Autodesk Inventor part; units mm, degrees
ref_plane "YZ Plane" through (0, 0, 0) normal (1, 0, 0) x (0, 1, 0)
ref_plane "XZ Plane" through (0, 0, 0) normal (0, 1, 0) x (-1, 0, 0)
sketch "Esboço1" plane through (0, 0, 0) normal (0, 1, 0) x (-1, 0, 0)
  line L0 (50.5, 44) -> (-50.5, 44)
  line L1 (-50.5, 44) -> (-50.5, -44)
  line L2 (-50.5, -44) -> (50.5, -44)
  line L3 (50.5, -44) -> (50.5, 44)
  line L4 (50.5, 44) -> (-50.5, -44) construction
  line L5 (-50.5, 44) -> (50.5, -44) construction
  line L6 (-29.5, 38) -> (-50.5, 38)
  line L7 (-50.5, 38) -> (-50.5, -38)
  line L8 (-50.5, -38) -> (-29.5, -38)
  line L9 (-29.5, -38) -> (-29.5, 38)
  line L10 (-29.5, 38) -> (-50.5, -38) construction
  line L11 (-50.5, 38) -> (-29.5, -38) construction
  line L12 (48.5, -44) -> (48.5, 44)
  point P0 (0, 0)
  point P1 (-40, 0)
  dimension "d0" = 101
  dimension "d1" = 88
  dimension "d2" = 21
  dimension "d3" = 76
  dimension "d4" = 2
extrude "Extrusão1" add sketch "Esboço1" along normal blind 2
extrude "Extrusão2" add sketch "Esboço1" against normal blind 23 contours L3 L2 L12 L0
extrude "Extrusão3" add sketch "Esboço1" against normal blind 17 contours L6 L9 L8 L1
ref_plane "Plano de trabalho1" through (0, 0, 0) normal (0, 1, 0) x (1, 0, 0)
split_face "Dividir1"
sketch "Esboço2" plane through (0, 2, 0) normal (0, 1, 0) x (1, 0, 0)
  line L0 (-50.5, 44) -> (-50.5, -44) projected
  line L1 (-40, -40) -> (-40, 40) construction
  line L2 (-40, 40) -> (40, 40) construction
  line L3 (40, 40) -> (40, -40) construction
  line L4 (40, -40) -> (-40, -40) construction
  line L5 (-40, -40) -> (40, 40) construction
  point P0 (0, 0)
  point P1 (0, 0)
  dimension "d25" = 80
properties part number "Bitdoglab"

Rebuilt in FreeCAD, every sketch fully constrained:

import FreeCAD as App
import Part
import Sketcher
from FreeCAD import Vector

doc = App.newDocument("Part")
body = doc.addObject("PartDesign::Body", "Body")

sketch1 = body.newObject("Sketcher::SketchObject", "Sketch")
sketch1.AttachmentSupport = (doc.getObject("XZ_Plane"), [""])
sketch1.MapMode = "FlatFace"
sketch1.addGeometry(Part.LineSegment(Vector(-50, -44, 0), Vector(-50, 44, 0)), False)
sketch1.addGeometry(Part.LineSegment(Vector(-50, 44, 0), Vector(50, 44, 0)), False)
sketch1.addGeometry(Part.LineSegment(Vector(50, 44, 0), Vector(50, -44, 0)), False)
sketch1.addGeometry(Part.LineSegment(Vector(50, -44, 0), Vector(-50, -44, 0)), False)
sketch1.addConstraint(Sketcher.Constraint("Coincident", 0, 2, 1, 1))
sketch1.addConstraint(Sketcher.Constraint("Coincident", 1, 2, 2, 1))
sketch1.addConstraint(Sketcher.Constraint("Coincident", 2, 2, 3, 1))
sketch1.addConstraint(Sketcher.Constraint("Coincident", 3, 2, 0, 1))
sketch1.addConstraint(Sketcher.Constraint("Vertical", 0))
sketch1.addConstraint(Sketcher.Constraint("Horizontal", 1))
sketch1.addConstraint(Sketcher.Constraint("Vertical", 2))
sketch1.addConstraint(Sketcher.Constraint("Horizontal", 3))
sketch1.addConstraint(Sketcher.Constraint("Symmetric", 0, 2, 2, 2, -1, 1))
sketch1.addConstraint(Sketcher.Constraint("DistanceX", 1, 1, 1, 2, 101.0))
sketch1.addConstraint(Sketcher.Constraint("DistanceY", 0, 1, 0, 2, 88.0))
pad1 = body.newObject("PartDesign::Pad", "Pad")
pad1.Profile = sketch1
pad1.Length = 2
pad1.Reversed = True

sketch2 = body.newObject("Sketcher::SketchObject", "Sketch001")
sketch2.AttachmentSupport = (doc.getObject("XZ_Plane"), [""])
sketch2.MapMode = "FlatFace"
sketch2.addGeometry(Part.LineSegment(Vector(-50.5, -44, 0), Vector(-50.5, 44, 0)), False)
sketch2.addGeometry(Part.LineSegment(Vector(-50.5, 44, 0), Vector(-48.5, 44, 0)), False)
sketch2.addGeometry(Part.LineSegment(Vector(-48.5, 44, 0), Vector(-48.5, -44, 0)), False)
sketch2.addGeometry(Part.LineSegment(Vector(-48.5, -44, 0), Vector(-50.5, -44, 0)), False)
sketch2.addConstraint(Sketcher.Constraint("Coincident", 0, 2, 1, 1))
sketch2.addConstraint(Sketcher.Constraint("Coincident", 1, 2, 2, 1))
sketch2.addConstraint(Sketcher.Constraint("Coincident", 2, 2, 3, 1))
sketch2.addConstraint(Sketcher.Constraint("Coincident", 3, 2, 0, 1))
sketch2.addConstraint(Sketcher.Constraint("Vertical", 0))
sketch2.addConstraint(Sketcher.Constraint("Horizontal", 1))
sketch2.addConstraint(Sketcher.Constraint("Vertical", 2))
sketch2.addConstraint(Sketcher.Constraint("Horizontal", 3))
sketch2.addConstraint(Sketcher.Constraint("DistanceX", 1, 1, 1, 2, 2.0))
sketch2.addConstraint(Sketcher.Constraint("DistanceY", 0, 1, 0, 2, 88.0))
sketch2.addConstraint(Sketcher.Constraint("DistanceY", -1, 1, 0, 2, 44.0))
sketch2.addConstraint(Sketcher.Constraint("DistanceX", 0, 2, -1, 1, 50.5))
pad2 = body.newObject("PartDesign::Pad", "Pad001")
pad2.Profile = sketch2
pad2.Length = 23

sketch3 = body.newObject("Sketcher::SketchObject", "Sketch002")
sketch3.AttachmentSupport = (doc.getObject("XZ_Plane"), [""])
sketch3.MapMode = "FlatFace"
sketch3.addGeometry(Part.LineSegment(Vector(30, 38, 0), Vector(50, 38, 0)), False)
sketch3.addGeometry(Part.LineSegment(Vector(50, 38, 0), Vector(50, -38, 0)), False)
sketch3.addGeometry(Part.LineSegment(Vector(50, -38, 0), Vector(30, -38, 0)), False)
sketch3.addGeometry(Part.LineSegment(Vector(30, -38, 0), Vector(30, 38, 0)), False)
sketch3.addConstraint(Sketcher.Constraint("Coincident", 0, 2, 1, 1))
sketch3.addConstraint(Sketcher.Constraint("Coincident", 1, 2, 2, 1))
sketch3.addConstraint(Sketcher.Constraint("Coincident", 2, 2, 3, 1))
sketch3.addConstraint(Sketcher.Constraint("Coincident", 3, 2, 0, 1))
sketch3.addConstraint(Sketcher.Constraint("Horizontal", 0))
sketch3.addConstraint(Sketcher.Constraint("Vertical", 1))
sketch3.addConstraint(Sketcher.Constraint("Horizontal", 2))
sketch3.addConstraint(Sketcher.Constraint("Vertical", 3))
sketch3.addConstraint(Sketcher.Constraint("DistanceX", 0, 1, 0, 2, 21.0))
sketch3.addConstraint(Sketcher.Constraint("DistanceY", 1, 2, 1, 1, 76.0))
sketch3.addConstraint(Sketcher.Constraint("DistanceY", -1, 1, 0, 2, 38.0))
sketch3.addConstraint(Sketcher.Constraint("DistanceX", -1, 1, 0, 2, 50.5))
pad3 = body.newObject("PartDesign::Pad", "Pad002")
pad3.Profile = sketch3
pad3.Length = 17

doc.recompute()
